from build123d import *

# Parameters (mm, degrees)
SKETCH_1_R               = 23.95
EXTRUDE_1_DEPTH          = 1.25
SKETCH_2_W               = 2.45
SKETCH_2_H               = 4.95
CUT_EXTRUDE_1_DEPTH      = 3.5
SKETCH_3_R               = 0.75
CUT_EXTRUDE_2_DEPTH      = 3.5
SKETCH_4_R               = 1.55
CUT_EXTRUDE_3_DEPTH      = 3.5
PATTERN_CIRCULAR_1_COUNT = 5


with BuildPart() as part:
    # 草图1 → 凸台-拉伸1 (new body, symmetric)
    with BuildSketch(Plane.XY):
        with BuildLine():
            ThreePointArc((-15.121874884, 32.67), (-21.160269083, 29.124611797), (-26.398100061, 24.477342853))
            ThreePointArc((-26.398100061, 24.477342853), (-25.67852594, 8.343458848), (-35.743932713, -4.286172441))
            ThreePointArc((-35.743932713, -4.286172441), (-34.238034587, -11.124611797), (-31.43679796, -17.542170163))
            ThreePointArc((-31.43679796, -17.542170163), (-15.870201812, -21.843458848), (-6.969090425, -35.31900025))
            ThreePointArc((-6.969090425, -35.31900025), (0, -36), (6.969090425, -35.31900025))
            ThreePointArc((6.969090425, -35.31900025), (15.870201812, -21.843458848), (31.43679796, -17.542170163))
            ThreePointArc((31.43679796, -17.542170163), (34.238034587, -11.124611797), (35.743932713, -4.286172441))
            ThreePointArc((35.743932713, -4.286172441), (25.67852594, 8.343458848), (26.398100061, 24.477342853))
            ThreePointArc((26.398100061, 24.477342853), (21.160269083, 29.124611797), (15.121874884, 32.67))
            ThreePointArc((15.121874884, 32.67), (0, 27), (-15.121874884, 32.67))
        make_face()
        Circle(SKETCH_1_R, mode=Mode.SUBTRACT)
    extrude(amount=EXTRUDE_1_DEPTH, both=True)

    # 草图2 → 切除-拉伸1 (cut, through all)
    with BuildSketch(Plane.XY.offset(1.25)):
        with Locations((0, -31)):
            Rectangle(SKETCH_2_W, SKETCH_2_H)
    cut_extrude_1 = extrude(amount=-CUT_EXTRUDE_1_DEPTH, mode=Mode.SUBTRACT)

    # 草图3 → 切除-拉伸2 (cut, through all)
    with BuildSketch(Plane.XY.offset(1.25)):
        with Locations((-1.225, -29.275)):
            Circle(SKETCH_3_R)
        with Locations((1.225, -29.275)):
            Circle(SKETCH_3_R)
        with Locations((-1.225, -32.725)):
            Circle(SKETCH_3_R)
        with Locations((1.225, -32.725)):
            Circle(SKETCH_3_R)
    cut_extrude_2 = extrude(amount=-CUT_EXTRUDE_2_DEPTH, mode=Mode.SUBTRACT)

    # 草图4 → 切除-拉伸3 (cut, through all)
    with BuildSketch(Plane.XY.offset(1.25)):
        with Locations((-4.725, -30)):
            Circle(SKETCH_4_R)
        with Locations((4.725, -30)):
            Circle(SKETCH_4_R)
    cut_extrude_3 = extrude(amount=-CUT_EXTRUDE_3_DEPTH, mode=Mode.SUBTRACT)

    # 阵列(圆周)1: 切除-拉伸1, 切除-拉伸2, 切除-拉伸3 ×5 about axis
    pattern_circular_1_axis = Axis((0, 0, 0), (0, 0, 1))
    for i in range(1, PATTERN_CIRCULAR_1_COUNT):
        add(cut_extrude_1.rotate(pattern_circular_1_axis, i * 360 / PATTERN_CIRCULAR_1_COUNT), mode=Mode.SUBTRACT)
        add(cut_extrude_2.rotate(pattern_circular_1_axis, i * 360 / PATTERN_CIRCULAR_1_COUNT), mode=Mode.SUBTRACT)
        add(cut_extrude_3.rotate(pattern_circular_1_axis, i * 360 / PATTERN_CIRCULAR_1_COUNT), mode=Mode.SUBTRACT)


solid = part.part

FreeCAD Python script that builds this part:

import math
import FreeCAD as App
import Part
import Sketcher
from FreeCAD import Vector
Q = App.Units.Quantity


def add_polygon(sketch, points):
    """Adds a closed chain of lines whose ends are joined by coincident constraints."""
    first, n = sketch.GeometryCount, len(points)
    for a, b in zip(points, points[1:] + points[:1]):
        sketch.addGeometry(Part.LineSegment(App.Vector(*a, 0), App.Vector(*b, 0)), False)
    for i in range(n):
        sketch.addConstraint(Sketcher.Constraint("Coincident", first + i, 2, first + (i + 1) % n, 1))

doc = App.newDocument("Part")
params = doc.addObject("Spreadsheet::Sheet", "Params")
for row, (alias, value) in enumerate([
    ("sketch1_radius", "36 mm"),
    ("sketch1_radius2", "23 mm"),
    ("sketch1_diameter", "47.9 mm"),
    ("pad1_length", "2.5 mm"),
    ("sketch2_width", "2.45 mm"),
    ("sketch2_height", "4.95 mm"),
    ("sketch3_diameter", "1.5 mm"),
    ("sketch4_diameter", "3.1 mm"),
], start=1):
    params.set(f"A{row}", alias)
    params.set(f"B{row}", "=" + value)
    params.setAlias(f"B{row}", alias)

body = doc.addObject("PartDesign::Body", "Body")

sketch1 = body.newObject("Sketcher::SketchObject", "Sketch")
sketch1.AttachmentSupport = (doc.getObject("XY_Plane"), [""])
sketch1.MapMode = "FlatFace"
sketch1.addGeometry(Part.ArcOfCircle(Part.Circle(Vector(0, 0, 0), Vector(0, 0, 1), 36), math.radians(114.837876), math.radians(137.162124)), False)
sketch1.addGeometry(Part.ArcOfCircle(Part.Circle(Vector(-47.552826, 15.45085, 0), Vector(0, 0, 1), 23), math.radians(-59.107419), math.radians(23.107419)), False)
sketch1.addGeometry(Part.ArcOfCircle(Part.Circle(Vector(0, 0, 0), Vector(0, 0, 1), 36), math.radians(-173.162124), math.radians(-150.837876)), False)
sketch1.addGeometry(Part.ArcOfCircle(Part.Circle(Vector(-29.389263, -40.45085, 0), Vector(0, 0, 1), 23), math.radians(12.892581), math.radians(95.107419)), False)
sketch1.addGeometry(Part.ArcOfCircle(Part.Circle(Vector(0, 0, 0), Vector(0, 0, 1), 36), math.radians(-101.162124), math.radians(-78.837876)), False)
sketch1.addGeometry(Part.ArcOfCircle(Part.Circle(Vector(29.389263, -40.45085, 0), Vector(0, 0, 1), 23), math.radians(84.892581), math.radians(167.107419)), False)
sketch1.addGeometry(Part.ArcOfCircle(Part.Circle(Vector(0, 0, 0), Vector(0, 0, 1), 36), math.radians(-29.162124), math.radians(-6.837876)), False)
sketch1.addGeometry(Part.ArcOfCircle(Part.Circle(Vector(47.552826, 15.45085, 0), Vector(0, 0, 1), 23), math.radians(156.892581), math.radians(239.107419)), False)
sketch1.addGeometry(Part.ArcOfCircle(Part.Circle(Vector(0, 0, 0), Vector(0, 0, 1), 36), math.radians(42.837876), math.radians(65.162124)), False)
sketch1.addGeometry(Part.ArcOfCircle(Part.Circle(Vector(0, 50, 0), Vector(0, 0, 1), 23), math.radians(-131.107419), math.radians(-48.892581)), False)
sketch1.addGeometry(Part.Circle(Vector(0, 0, 0), Vector(0, 0, 1), 23.95), False)
sketch1.addConstraint(Sketcher.Constraint("Coincident", 0, 2, 1, 2))
sketch1.addConstraint(Sketcher.Constraint("Coincident", 1, 1, 2, 1))
sketch1.addConstraint(Sketcher.Constraint("Coincident", 2, 2, 3, 2))
sketch1.addConstraint(Sketcher.Constraint("Coincident", 3, 1, 4, 1))
sketch1.addConstraint(Sketcher.Constraint("Coincident", 4, 2, 5, 2))
sketch1.addConstraint(Sketcher.Constraint("Coincident", 5, 1, 6, 1))
sketch1.addConstraint(Sketcher.Constraint("Coincident", 6, 2, 7, 2))
sketch1.addConstraint(Sketcher.Constraint("Coincident", 7, 1, 8, 1))
sketch1.addConstraint(Sketcher.Constraint("Coincident", 8, 2, 9, 2))
sketch1.addConstraint(Sketcher.Constraint("Coincident", 9, 1, 0, 1))
sketch1.addConstraint(Sketcher.Constraint("Coincident", 0, 3, -1, 1))
sketch1.addConstraint(Sketcher.Constraint("Coincident", 2, 3, -1, 1))
sketch1.addConstraint(Sketcher.Constraint("Coincident", 4, 3, -1, 1))
sketch1.addConstraint(Sketcher.Constraint("Coincident", 6, 3, -1, 1))
sketch1.addConstraint(Sketcher.Constraint("Coincident", 8, 3, -1, 1))
sketch1.addConstraint(Sketcher.Constraint("Coincident", 10, 3, -1, 1))
sketch1.addConstraint(Sketcher.Constraint("Equal", 0, 2))
sketch1.addConstraint(Sketcher.Constraint("Equal", 1, 3))
sketch1.addConstraint(Sketcher.Constraint("Equal", 2, 4))
sketch1.addConstraint(Sketcher.Constraint("Equal", 3, 5))
sketch1.addConstraint(Sketcher.Constraint("Equal", 4, 6))
sketch1.addConstraint(Sketcher.Constraint("Equal", 5, 7))
sketch1.addConstraint(Sketcher.Constraint("Equal", 6, 8))
sketch1.addConstraint(Sketcher.Constraint("Equal", 7, 9))
sketch1.addConstraint(Sketcher.Constraint("Symmetric", 3, 3, 5, 3, -2))
sketch1.addConstraint(Sketcher.Constraint("Symmetric", 1, 3, 7, 3, -2))
sketch1.addConstraint(Sketcher.Constraint("PointOnObject", 9, 3, -2))
sketch1.addConstraint(Sketcher.Constraint("Radius", 0, Q("36 mm")))
sketch1.addConstraint(Sketcher.Constraint("Radius", 1, Q("23 mm")))
sketch1.addConstraint(Sketcher.Constraint("Diameter", 10, Q("47.9 mm")))
sketch1.addConstraint(Sketcher.Constraint("DistanceY", -1, 1, 9, 3, Q("50 mm")))
sketch1.addConstraint(Sketcher.Constraint("DistanceY", 3, 1, -1, 1, Q("35.319 mm")))
sketch1.addConstraint(Sketcher.Constraint("DistanceX", 0, 2, -1, 1, Q("26.3981 mm")))
sketch1.addConstraint(Sketcher.Constraint("DistanceY", 3, 3, 1, 3, Q("55.901699 mm")))
sketch1.addConstraint(Sketcher.Constraint("DistanceY", -1, 1, 1, 3, Q("15.45085 mm")))
sketch1.setExpression("Constraints[27]", "Params.sketch1_radius")
sketch1.setExpression("Constraints[28]", "Params.sketch1_radius2")
sketch1.setExpression("Constraints[29]", "Params.sketch1_diameter")
pad1 = body.newObject("PartDesign::Pad", "Pad")
pad1.Profile = sketch1
pad1.setExpression("Length", "Params.pad1_length")
pad1.Midplane = True

sketch2 = body.newObject("Sketcher::SketchObject", "Sketch001")
sketch2.AttachmentSupport = (doc.getObject("XY_Plane"), [""])
sketch2.MapMode = "FlatFace"
sketch2.AttachmentOffset = App.Placement(Vector(0, 0, 1.25), App.Rotation())
add_polygon(sketch2, [(-1.225, -28.525), (-1.225, -33.475), (1.225, -33.475), (1.225, -28.525)])
sketch2.addConstraint(Sketcher.Constraint("Vertical", 0))
sketch2.addConstraint(Sketcher.Constraint("Horizontal", 1))
sketch2.addConstraint(Sketcher.Constraint("Vertical", 2))
sketch2.addConstraint(Sketcher.Constraint("Horizontal", 3))
sketch2.addConstraint(Sketcher.Constraint("DistanceX", 1, 1, 1, 2, Q("2.45 mm")))
sketch2.addConstraint(Sketcher.Constraint("DistanceY", 0, 2, 0, 1, Q("4.95 mm")))
sketch2.addConstraint(Sketcher.Constraint("DistanceX", 0, 2, -1, 1, Q("1.225 mm")))
sketch2.addConstraint(Sketcher.Constraint("DistanceY", 0, 2, -1, 1, Q("33.475 mm")))
sketch2.setExpression("Constraints[8]", "Params.sketch2_width")
sketch2.setExpression("Constraints[9]", "Params.sketch2_height")
pocket1 = body.newObject("PartDesign::Pocket", "Pocket")
pocket1.Profile = sketch2
pocket1.Type = "ThroughAll"

sketch3 = body.newObject("Sketcher::SketchObject", "Sketch002")
sketch3.AttachmentSupport = (doc.getObject("XY_Plane"), [""])
sketch3.MapMode = "FlatFace"
sketch3.AttachmentOffset = App.Placement(Vector(0, 0, 1.25), App.Rotation())
sketch3.addGeometry(Part.Circle(Vector(-1.225, -29.275, 0), Vector(0, 0, 1), 0.75), False)
sketch3.addGeometry(Part.Circle(Vector(1.225, -29.275, 0), Vector(0, 0, 1), 0.75), False)
sketch3.addGeometry(Part.Circle(Vector(-1.225, -32.725, 0), Vector(0, 0, 1), 0.75), False)
sketch3.addGeometry(Part.Circle(Vector(1.225, -32.725, 0), Vector(0, 0, 1), 0.75), False)
sketch3.addConstraint(Sketcher.Constraint("Equal", 0, 1))
sketch3.addConstraint(Sketcher.Constraint("Equal", 1, 2))
sketch3.addConstraint(Sketcher.Constraint("Equal", 2, 3))
sketch3.addConstraint(Sketcher.Constraint("Symmetric", 0, 3, 1, 3, -2))
sketch3.addConstraint(Sketcher.Constraint("Symmetric", 2, 3, 3, 3, -2))
sketch3.addConstraint(Sketcher.Constraint("Vertical", 0, 3, 2, 3))
sketch3.addConstraint(Sketcher.Constraint("Diameter", 0, Q("1.5 mm")))
sketch3.addConstraint(Sketcher.Constraint("DistanceX", 0, 3, 1, 3, Q("2.45 mm")))
sketch3.addConstraint(Sketcher.Constraint("DistanceY", 2, 3, 0, 3, Q("3.45 mm")))
sketch3.addConstraint(Sketcher.Constraint("DistanceY", 0, 3, -1, 1, Q("29.275 mm")))
sketch3.setExpression("Constraints[6]", "Params.sketch3_diameter")
pocket2 = body.newObject("PartDesign::Pocket", "Pocket001")
pocket2.Profile = sketch3
pocket2.Type = "ThroughAll"

sketch4 = body.newObject("Sketcher::SketchObject", "Sketch003")
sketch4.AttachmentSupport = (doc.getObject("XY_Plane"), [""])
sketch4.MapMode = "FlatFace"
sketch4.AttachmentOffset = App.Placement(Vector(0, 0, 1.25), App.Rotation())
sketch4.addGeometry(Part.Circle(Vector(-4.725, -30, 0), Vector(0, 0, 1), 1.55), False)
sketch4.addGeometry(Part.Circle(Vector(4.725, -30, 0), Vector(0, 0, 1), 1.55), False)
sketch4.addConstraint(Sketcher.Constraint("Equal", 0, 1))
sketch4.addConstraint(Sketcher.Constraint("Symmetric", 0, 3, 1, 3, -2))
sketch4.addConstraint(Sketcher.Constraint("Diameter", 0, Q("3.1 mm")))
sketch4.addConstraint(Sketcher.Constraint("DistanceY", 0, 3, -1, 1, Q("30 mm")))
sketch4.addConstraint(Sketcher.Constraint("DistanceX", 0, 3, 1, 3, Q("9.45 mm")))
sketch4.setExpression("Constraints[2]", "Params.sketch4_diameter")
pocket3 = body.newObject("PartDesign::Pocket", "Pocket002")
pocket3.Profile = sketch4
pocket3.Type = "ThroughAll"
doc.recompute()

polarpattern = body.newObject("PartDesign::PolarPattern", "PolarPattern")
polarpattern.Originals = [pocket1, pocket2, pocket3]
polarpattern.Axis = (doc.getObject("Z_Axis"), [""])
polarpattern.Angle = 360
polarpattern.Occurrences = 5
body.Tip = polarpattern

doc.recompute()
